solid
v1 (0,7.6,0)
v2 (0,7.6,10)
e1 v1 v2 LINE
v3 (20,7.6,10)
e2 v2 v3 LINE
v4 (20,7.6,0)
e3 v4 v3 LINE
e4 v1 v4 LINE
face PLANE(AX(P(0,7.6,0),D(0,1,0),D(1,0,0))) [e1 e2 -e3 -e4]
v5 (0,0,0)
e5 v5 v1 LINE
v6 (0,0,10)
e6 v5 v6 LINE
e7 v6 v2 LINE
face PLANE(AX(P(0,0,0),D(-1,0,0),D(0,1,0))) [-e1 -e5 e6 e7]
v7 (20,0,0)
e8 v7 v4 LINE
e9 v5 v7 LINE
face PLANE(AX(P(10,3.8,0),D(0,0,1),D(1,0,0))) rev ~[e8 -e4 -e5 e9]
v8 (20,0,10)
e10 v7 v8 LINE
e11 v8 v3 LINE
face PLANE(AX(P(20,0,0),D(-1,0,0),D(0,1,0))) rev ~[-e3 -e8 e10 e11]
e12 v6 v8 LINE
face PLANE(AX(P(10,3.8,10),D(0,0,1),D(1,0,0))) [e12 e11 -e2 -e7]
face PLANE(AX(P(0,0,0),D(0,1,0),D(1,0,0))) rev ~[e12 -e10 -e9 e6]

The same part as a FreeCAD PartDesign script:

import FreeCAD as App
import Part
import Sketcher
from FreeCAD import Vector
Q = App.Units.Quantity

doc = App.newDocument("Part")
params = doc.addObject("Spreadsheet::Sheet", "Params")
for row, (alias, value) in enumerate([
    ("sketch1_width", "20 mm"),
    ("sketch1_height", "7.6 mm"),
    ("pad1_length", "10 mm"),
], start=1):
    params.set(f"A{row}", alias)
    params.set(f"B{row}", "=" + value)
    params.setAlias(f"B{row}", alias)

body = doc.addObject("PartDesign::Body", "Body")

sketch1 = doc.addObject("Sketcher::SketchObject", "Sketch")
body.addObject(sketch1)
sketch1.AttachmentSupport = (doc.XY_Plane, [""])
sketch1.MapMode = "FlatFace"
sketch1.addGeometry(Part.LineSegment(Vector(0, 8, 0), Vector(0, 0, 0)), False)
sketch1.addGeometry(Part.LineSegment(Vector(0, 0, 0), Vector(20, 0, 0)), False)
sketch1.addGeometry(Part.LineSegment(Vector(20, 0, 0), Vector(20, 8, 0)), False)
sketch1.addGeometry(Part.LineSegment(Vector(20, 8, 0), Vector(0, 8, 0)), False)
sketch1.addConstraint(Sketcher.Constraint("Coincident", 0, 2, 1, 1))
sketch1.addConstraint(Sketcher.Constraint("Coincident", 1, 2, 2, 1))
sketch1.addConstraint(Sketcher.Constraint("Coincident", 2, 2, 3, 1))
sketch1.addConstraint(Sketcher.Constraint("Coincident", 3, 2, 0, 1))
sketch1.addConstraint(Sketcher.Constraint("Vertical", 0))
sketch1.addConstraint(Sketcher.Constraint("Horizontal", 1))
sketch1.addConstraint(Sketcher.Constraint("Vertical", 2))
sketch1.addConstraint(Sketcher.Constraint("Horizontal", 3))
sketch1.addConstraint(Sketcher.Constraint("Coincident", 0, 2, -1, 1))
sketch1.addConstraint(Sketcher.Constraint("DistanceX", 1, 1, 1, 2, Q("20 mm")))
sketch1.addConstraint(Sketcher.Constraint("DistanceY", 0, 2, 0, 1, Q("7.6 mm")))
sketch1.setExpression("Constraints[9]", "Params.sketch1_width")
sketch1.setExpression("Constraints[10]", "Params.sketch1_height")
pad1 = doc.addObject("PartDesign::Pad", "Pad")
body.addObject(pad1)
pad1.Profile = sketch1
pad1.setExpression("Length", "Params.pad1_length")

doc.recompute()
